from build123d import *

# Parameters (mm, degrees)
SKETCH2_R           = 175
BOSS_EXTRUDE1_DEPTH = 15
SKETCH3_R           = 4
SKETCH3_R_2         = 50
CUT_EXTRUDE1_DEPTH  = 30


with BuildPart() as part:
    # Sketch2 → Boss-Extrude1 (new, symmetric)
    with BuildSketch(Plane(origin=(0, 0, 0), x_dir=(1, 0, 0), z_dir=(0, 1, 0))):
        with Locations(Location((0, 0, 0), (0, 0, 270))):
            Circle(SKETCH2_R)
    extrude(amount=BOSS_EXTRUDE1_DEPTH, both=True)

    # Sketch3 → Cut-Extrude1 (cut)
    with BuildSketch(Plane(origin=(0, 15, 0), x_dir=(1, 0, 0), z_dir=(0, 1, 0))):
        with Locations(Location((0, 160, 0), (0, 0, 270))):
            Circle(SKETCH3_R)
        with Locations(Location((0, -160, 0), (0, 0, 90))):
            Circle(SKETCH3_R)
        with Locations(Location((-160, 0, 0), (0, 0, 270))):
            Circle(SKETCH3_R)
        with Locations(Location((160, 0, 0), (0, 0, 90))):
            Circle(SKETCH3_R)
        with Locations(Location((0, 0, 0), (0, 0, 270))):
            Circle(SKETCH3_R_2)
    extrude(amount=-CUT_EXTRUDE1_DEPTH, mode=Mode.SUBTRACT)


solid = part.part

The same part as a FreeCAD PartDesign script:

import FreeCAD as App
import Part
import Sketcher
from FreeCAD import Vector

doc = App.newDocument("Part")
body = doc.addObject("PartDesign::Body", "Body")

# Sketch on XZ plane
sketch1 = body.newObject("Sketcher::SketchObject", "Sketch")
sketch1.AttachmentSupport = (doc.getObject("XZ_Plane"), [""])
sketch1.MapMode = "FlatFace"
sketch1.addGeometry(Part.Circle(Vector(0, 0, 0), Vector(0, 0, 1), 175), False)
sketch1.addConstraint(Sketcher.Constraint("Coincident", 0, 3, -1, 1))
sketch1.addConstraint(Sketcher.Constraint("Diameter", 0, 350.0))
pad1 = body.newObject("PartDesign::Pad", "Pad")
pad1.Profile = sketch1
pad1.Length = 30
pad1.Midplane = True

# Sketch on XZ plane
sketch2 = body.newObject("Sketcher::SketchObject", "Sketch001")
sketch2.AttachmentSupport = (doc.getObject("XZ_Plane"), [""])
sketch2.MapMode = "FlatFace"
sketch2.AttachmentOffset = App.Placement(Vector(0, 0, -15), App.Rotation())
sketch2.addGeometry(Part.Circle(Vector(0, -160, 0), Vector(0, 0, 1), 4), False)
sketch2.addGeometry(Part.Circle(Vector(0, 160, 0), Vector(0, 0, 1), 4), False)
sketch2.addGeometry(Part.Circle(Vector(-160, 0, 0), Vector(0, 0, 1), 4), False)
sketch2.addGeometry(Part.Circle(Vector(160, 0, 0), Vector(0, 0, 1), 4), False)
sketch2.addGeometry(Part.Circle(Vector(0, 0, 0), Vector(0, 0, 1), 50), False)
sketch2.addConstraint(Sketcher.Constraint("Coincident", 4, 3, -1, 1))
sketch2.addConstraint(Sketcher.Constraint("Equal", 0, 1))
sketch2.addConstraint(Sketcher.Constraint("Equal", 1, 2))
sketch2.addConstraint(Sketcher.Constraint("Equal", 2, 3))
sketch2.addConstraint(Sketcher.Constraint("Symmetric", 0, 3, 1, 3, -1, 1))
sketch2.addConstraint(Sketcher.Constraint("Symmetric", 2, 3, 3, 3, -1, 1))
sketch2.addConstraint(Sketcher.Constraint("PointOnObject", 0, 3, -2))
sketch2.addConstraint(Sketcher.Constraint("PointOnObject", 2, 3, -1))
sketch2.addConstraint(Sketcher.Constraint("Diameter", 0, 8.0))
sketch2.addConstraint(Sketcher.Constraint("Diameter", 4, 100.0))
sketch2.addConstraint(Sketcher.Constraint("DistanceY", 0, 3, -1, 1, 160.0))
sketch2.addConstraint(Sketcher.Constraint("DistanceX", 2, 3, -1, 1, 160.0))
pocket1 = body.newObject("PartDesign::Pocket", "Pocket")
pocket1.Profile = sketch2
pocket1.Length = 30
pocket1.Reversed = True

doc.recompute()
